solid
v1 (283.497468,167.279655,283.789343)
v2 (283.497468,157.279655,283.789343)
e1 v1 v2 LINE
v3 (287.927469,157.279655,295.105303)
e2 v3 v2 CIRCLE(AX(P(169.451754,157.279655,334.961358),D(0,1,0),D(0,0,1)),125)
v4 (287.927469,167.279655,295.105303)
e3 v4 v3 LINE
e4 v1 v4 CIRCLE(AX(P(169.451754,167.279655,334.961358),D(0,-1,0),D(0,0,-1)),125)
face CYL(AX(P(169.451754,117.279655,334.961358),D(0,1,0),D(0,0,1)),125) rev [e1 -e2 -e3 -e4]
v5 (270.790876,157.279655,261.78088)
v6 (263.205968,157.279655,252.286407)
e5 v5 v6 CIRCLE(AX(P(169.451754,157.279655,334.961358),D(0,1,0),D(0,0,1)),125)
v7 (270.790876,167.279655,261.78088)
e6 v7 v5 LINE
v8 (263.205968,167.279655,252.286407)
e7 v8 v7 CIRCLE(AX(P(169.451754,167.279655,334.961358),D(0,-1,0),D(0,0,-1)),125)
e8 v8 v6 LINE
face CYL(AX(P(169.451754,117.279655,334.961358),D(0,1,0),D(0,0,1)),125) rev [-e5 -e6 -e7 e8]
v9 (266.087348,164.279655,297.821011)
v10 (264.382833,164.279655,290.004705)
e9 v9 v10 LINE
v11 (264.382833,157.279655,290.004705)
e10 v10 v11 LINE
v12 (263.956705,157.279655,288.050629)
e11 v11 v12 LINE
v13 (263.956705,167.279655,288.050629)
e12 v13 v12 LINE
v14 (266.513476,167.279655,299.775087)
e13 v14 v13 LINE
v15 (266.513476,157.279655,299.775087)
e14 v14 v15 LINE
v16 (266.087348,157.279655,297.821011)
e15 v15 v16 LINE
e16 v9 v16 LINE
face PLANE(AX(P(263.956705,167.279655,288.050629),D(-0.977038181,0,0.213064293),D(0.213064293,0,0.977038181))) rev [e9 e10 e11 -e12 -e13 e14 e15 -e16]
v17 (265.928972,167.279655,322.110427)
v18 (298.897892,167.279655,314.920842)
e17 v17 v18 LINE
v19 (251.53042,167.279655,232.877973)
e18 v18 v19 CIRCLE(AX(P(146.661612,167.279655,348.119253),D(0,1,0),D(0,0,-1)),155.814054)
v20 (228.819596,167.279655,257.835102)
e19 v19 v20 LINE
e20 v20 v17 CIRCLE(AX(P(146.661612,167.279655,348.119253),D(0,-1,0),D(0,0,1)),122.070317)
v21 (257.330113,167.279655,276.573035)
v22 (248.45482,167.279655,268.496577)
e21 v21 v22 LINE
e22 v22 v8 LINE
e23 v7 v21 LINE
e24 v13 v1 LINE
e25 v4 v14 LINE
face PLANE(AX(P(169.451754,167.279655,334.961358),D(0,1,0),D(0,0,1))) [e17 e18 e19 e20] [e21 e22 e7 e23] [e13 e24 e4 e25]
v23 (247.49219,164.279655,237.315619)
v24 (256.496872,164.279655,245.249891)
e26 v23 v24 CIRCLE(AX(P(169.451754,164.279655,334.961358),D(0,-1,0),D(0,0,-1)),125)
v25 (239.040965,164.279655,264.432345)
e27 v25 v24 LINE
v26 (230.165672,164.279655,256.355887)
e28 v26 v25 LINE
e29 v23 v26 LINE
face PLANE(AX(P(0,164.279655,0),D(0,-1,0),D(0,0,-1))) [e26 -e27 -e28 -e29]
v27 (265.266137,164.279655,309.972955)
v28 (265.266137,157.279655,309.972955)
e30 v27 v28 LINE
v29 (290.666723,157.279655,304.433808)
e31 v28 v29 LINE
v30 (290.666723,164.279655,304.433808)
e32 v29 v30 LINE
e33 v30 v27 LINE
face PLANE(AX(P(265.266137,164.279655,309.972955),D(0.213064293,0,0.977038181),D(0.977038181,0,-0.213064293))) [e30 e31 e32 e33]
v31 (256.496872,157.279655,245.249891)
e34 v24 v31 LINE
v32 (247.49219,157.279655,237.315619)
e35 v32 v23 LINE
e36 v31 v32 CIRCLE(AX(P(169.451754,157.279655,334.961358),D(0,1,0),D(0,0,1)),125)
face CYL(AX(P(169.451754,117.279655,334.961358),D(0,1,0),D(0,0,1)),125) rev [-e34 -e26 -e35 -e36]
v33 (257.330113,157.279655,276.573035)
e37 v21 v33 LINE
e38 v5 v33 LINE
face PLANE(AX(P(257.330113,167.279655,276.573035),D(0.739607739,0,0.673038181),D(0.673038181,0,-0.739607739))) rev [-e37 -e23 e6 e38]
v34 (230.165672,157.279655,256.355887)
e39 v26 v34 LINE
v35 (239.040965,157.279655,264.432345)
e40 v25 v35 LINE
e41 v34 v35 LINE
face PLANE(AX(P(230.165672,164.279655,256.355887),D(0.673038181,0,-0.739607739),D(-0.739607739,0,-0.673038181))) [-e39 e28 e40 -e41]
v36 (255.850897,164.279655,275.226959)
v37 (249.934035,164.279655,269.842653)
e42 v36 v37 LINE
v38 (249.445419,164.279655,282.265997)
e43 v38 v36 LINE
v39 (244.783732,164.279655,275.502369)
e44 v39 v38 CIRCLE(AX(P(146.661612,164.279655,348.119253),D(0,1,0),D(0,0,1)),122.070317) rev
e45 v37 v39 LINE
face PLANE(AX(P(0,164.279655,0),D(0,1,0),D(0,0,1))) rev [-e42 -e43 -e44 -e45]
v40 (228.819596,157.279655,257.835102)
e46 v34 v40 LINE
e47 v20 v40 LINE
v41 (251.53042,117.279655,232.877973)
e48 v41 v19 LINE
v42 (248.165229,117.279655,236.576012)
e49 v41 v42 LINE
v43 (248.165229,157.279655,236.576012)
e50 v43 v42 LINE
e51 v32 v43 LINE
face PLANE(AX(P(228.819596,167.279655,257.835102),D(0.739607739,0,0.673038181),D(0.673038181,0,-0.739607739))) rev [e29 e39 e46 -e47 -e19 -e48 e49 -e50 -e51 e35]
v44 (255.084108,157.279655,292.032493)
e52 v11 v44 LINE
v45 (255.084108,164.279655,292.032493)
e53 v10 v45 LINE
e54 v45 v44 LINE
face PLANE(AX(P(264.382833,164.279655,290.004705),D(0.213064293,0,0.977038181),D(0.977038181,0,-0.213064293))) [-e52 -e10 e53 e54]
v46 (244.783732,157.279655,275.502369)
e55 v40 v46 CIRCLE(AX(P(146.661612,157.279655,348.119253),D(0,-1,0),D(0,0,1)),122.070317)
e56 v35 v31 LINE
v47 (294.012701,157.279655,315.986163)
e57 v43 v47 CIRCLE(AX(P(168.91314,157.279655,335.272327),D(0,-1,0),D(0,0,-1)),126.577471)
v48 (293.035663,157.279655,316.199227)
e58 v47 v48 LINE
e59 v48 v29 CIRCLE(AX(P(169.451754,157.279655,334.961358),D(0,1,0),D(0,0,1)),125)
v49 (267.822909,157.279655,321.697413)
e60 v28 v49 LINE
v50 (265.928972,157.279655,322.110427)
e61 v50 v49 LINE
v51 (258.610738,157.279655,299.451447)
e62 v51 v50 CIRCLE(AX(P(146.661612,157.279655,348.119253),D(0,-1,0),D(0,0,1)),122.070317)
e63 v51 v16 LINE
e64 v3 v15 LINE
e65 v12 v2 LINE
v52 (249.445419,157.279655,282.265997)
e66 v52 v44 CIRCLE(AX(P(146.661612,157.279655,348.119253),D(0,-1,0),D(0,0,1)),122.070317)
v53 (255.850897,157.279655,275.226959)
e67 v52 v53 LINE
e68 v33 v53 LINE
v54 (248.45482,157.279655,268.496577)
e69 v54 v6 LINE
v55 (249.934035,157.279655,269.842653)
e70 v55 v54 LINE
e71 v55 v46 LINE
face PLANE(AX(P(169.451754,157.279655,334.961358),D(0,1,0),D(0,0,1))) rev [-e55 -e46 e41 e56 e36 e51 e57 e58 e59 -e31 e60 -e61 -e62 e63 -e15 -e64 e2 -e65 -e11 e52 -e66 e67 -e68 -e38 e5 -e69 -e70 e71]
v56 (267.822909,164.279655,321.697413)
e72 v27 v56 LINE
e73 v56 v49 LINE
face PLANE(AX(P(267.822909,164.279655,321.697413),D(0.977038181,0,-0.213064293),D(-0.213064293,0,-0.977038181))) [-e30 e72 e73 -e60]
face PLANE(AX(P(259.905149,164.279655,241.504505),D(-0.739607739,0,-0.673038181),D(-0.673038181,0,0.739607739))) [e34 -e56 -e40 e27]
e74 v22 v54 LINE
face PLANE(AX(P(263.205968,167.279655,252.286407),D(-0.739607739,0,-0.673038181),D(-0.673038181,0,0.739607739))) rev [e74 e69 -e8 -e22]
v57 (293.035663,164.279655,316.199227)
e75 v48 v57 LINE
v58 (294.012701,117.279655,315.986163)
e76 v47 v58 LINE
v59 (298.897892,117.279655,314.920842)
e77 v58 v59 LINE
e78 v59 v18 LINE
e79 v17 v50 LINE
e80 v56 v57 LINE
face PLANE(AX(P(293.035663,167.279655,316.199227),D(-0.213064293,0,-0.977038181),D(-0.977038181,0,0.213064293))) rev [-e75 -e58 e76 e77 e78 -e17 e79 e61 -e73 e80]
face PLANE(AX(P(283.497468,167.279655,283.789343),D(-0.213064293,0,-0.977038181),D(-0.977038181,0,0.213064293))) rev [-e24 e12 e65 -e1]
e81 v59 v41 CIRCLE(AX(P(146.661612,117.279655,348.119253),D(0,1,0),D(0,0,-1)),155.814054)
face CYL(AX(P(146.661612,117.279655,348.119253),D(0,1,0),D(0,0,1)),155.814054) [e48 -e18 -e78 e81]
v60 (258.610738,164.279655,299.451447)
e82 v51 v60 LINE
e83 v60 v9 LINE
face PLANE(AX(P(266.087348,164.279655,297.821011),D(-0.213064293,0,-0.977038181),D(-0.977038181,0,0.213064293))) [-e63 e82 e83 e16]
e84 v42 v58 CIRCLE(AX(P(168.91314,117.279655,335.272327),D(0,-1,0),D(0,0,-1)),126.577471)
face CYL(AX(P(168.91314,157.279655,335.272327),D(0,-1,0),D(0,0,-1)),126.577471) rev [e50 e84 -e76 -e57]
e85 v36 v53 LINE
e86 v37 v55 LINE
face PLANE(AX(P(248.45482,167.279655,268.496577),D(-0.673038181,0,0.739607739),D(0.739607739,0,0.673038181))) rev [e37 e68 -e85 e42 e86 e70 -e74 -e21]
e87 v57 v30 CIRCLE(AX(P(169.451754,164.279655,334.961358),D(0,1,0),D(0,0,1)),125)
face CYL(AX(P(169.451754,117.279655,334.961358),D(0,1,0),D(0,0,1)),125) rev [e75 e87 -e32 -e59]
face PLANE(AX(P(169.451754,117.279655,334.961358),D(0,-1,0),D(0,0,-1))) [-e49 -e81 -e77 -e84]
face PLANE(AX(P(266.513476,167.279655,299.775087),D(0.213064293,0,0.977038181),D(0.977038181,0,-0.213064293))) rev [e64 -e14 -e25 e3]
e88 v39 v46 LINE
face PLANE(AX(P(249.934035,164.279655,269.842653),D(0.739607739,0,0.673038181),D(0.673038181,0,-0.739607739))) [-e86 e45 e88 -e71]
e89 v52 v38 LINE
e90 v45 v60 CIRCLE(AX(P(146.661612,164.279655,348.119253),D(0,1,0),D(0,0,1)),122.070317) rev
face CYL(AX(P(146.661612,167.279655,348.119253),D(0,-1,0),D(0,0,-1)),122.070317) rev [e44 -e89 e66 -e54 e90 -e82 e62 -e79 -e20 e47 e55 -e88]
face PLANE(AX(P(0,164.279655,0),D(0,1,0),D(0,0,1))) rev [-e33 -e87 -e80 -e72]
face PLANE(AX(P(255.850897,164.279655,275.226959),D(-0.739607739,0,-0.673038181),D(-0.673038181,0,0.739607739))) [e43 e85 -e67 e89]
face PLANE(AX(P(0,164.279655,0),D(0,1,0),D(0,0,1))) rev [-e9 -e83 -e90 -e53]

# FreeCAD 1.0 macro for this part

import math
import FreeCAD as App
import Part
import Sketcher

V = App.Vector
Q = App.Units.Quantity


def add_polygon(sketch, points):
    """Adds a closed chain of lines whose ends are joined by coincident constraints."""
    first, n = sketch.GeometryCount, len(points)
    for a, b in zip(points, points[1:] + points[:1]):
        sketch.addGeometry(Part.LineSegment(App.Vector(*a, 0), App.Vector(*b, 0)), False)
    for i in range(n):
        sketch.addConstraint(Sketcher.Constraint("Coincident", first + i, 2, first + (i + 1) % n, 1))

doc = App.newDocument("Part")
body = doc.addObject("PartDesign::Body", "Body")

sketch1 = body.newObject("Sketcher::SketchObject", "Sketch")
sketch1.AttachmentSupport = (doc.getObject("XZ_Plane"), [""])
sketch1.MapMode = "FlatFace"
sketch1.AttachmentOffset = App.Placement(V(0, 0, -157.279655), App.Rotation())
sketch1.addGeometry(Part.LineSegment(V(265.928972, 322.110427, 0), V(293.035663, 316.199227, 0)), False)
sketch1.addGeometry(Part.ArcOfCircle(Part.Circle(V(169.451754, 334.961358, 0), V(0, 0, 1), 125), math.radians(-18.593298), math.radians(-8.632551)), False)
sketch1.addGeometry(Part.LineSegment(V(287.927469, 295.105303, 0), V(266.513476, 299.775087, 0)), False)
sketch1.addGeometry(Part.LineSegment(V(266.513476, 299.775087, 0), V(263.956705, 288.050629, 0)), False)
sketch1.addGeometry(Part.LineSegment(V(263.956705, 288.050629, 0), V(283.497468, 283.789343, 0)), False)
sketch1.addGeometry(Part.ArcOfCircle(Part.Circle(V(169.451754, 334.961358, 0), V(0, 0, 1), 125), math.radians(-35.83435), math.radians(-24.16565)), False)
sketch1.addGeometry(Part.LineSegment(V(270.790876, 261.78088, 0), V(257.330113, 276.573035, 0)), False)
sketch1.addGeometry(Part.LineSegment(V(257.330113, 276.573035, 0), V(248.45482, 268.496577, 0)), False)
sketch1.addGeometry(Part.LineSegment(V(248.45482, 268.496577, 0), V(263.205968, 252.286407, 0)), False)
sketch1.addGeometry(Part.ArcOfCircle(Part.Circle(V(169.451754, 334.961358, 0), V(0, 0, 1), 125), math.radians(-51.367449), math.radians(-41.406702)), False)
sketch1.addGeometry(Part.LineSegment(V(247.49219, 237.315619, 0), V(228.819596, 257.835102, 0)), False)
sketch1.addGeometry(Part.ArcOfCircle(Part.Circle(V(146.661612, 348.119253, 0), V(0, 0, 1), 122.070317), math.radians(-47.698012), math.radians(-12.301988)), False)
sketch1.addConstraint(Sketcher.Constraint("Coincident", 0, 2, 1, 2))
sketch1.addConstraint(Sketcher.Constraint("Coincident", 1, 1, 2, 1))
sketch1.addConstraint(Sketcher.Constraint("Coincident", 2, 2, 3, 1))
sketch1.addConstraint(Sketcher.Constraint("Coincident", 3, 2, 4, 1))
sketch1.addConstraint(Sketcher.Constraint("Coincident", 4, 2, 5, 2))
sketch1.addConstraint(Sketcher.Constraint("Coincident", 5, 1, 6, 1))
sketch1.addConstraint(Sketcher.Constraint("Coincident", 6, 2, 7, 1))
sketch1.addConstraint(Sketcher.Constraint("Coincident", 7, 2, 8, 1))
sketch1.addConstraint(Sketcher.Constraint("Coincident", 8, 2, 9, 2))
sketch1.addConstraint(Sketcher.Constraint("Coincident", 9, 1, 10, 1))
sketch1.addConstraint(Sketcher.Constraint("Coincident", 10, 2, 11, 1))
sketch1.addConstraint(Sketcher.Constraint("Coincident", 11, 2, 0, 1))
sketch1.addConstraint(Sketcher.Constraint("Coincident", 5, 3, 1, 3))
sketch1.addConstraint(Sketcher.Constraint("Coincident", 9, 3, 1, 3))
sketch1.addConstraint(Sketcher.Constraint("Equal", 1, 5))
sketch1.addConstraint(Sketcher.Constraint("Equal", 5, 9))
sketch1.addConstraint(Sketcher.Constraint("Parallel", 0, 2))
sketch1.addConstraint(Sketcher.Constraint("Perpendicular", 2, 3))
sketch1.addConstraint(Sketcher.Constraint("Perpendicular", 3, 4))
sketch1.addConstraint(Sketcher.Constraint("Perpendicular", 6, 7))
sketch1.addConstraint(Sketcher.Constraint("Perpendicular", 7, 8))
sketch1.addConstraint(Sketcher.Constraint("Parallel", 8, 10))
sketch1.addConstraint(Sketcher.Constraint("Equal", 4, 6))
sketch1.addConstraint(Sketcher.Constraint("Equal", 3, 7))
sketch1.addConstraint(Sketcher.Constraint("Equal", 2, 8))
sketch1.addConstraint(Sketcher.Constraint("Equal", 0, 10))
sketch1.addConstraint(Sketcher.Constraint("Radius", 1, Q("125 mm")))
sketch1.addConstraint(Sketcher.Constraint("Distance", 3, Q("12 mm")))
sketch1.addConstraint(Sketcher.Constraint("Distance", 4, Q("20 mm")))
sketch1.addConstraint(Sketcher.Constraint("Radius", 11, Q("122.070317 mm")))
sketch1.addConstraint(Sketcher.Constraint("DistanceY", 3, 2, 0, 2, Q("28.148599 mm")))
sketch1.addConstraint(Sketcher.Constraint("DistanceX", 2, 2, 5, 1, Q("4.2774 mm")))
sketch1.addConstraint(Sketcher.Constraint("DistanceX", 8, 2, 4, 2, Q("20.291501 mm")))
sketch1.addConstraint(Sketcher.Constraint("DistanceY", -1, 1, 1, 3, Q("334.961358 mm")))
sketch1.addConstraint(Sketcher.Constraint("DistanceX", -1, 1, 1, 1, Q("287.927469 mm")))
sketch1.addConstraint(Sketcher.Constraint("DistanceY", -1, 1, 3, 2, Q("288.050629 mm")))
sketch1.addConstraint(Sketcher.Constraint("DistanceX", -1, 1, 9, 1, Q("247.49219 mm")))
sketch1.addConstraint(Sketcher.Constraint("DistanceX", 11, 3, 0, 2, Q("146.374051 mm")))
pad1 = body.newObject("PartDesign::Pad", "Pad")
pad1.Profile = sketch1
pad1.Length = 10
pad1.Reversed = True

sketch2 = body.newObject("Sketcher::SketchObject", "Sketch001")
sketch2.AttachmentSupport = (doc.getObject("XZ_Plane"), [""])
sketch2.MapMode = "FlatFace"
sketch2.AttachmentOffset = App.Placement(V(0, 0, -157.279655), App.Rotation())
add_polygon(sketch2, [(265.266137, 309.972955), (267.822909, 321.697413), (297.930502, 315.131802), (295.554321, 303.367962)])
add_polygon(sketch2, [(251.029856, 233.428047), (230.165672, 256.355887), (239.040965, 264.432345), (259.905149, 241.504505)])
sketch2.addConstraint(Sketcher.Constraint("Perpendicular", 0, 1))
sketch2.addConstraint(Sketcher.Constraint("Parallel", 1, 3))
sketch2.addConstraint(Sketcher.Constraint("Perpendicular", 4, 5))
sketch2.addConstraint(Sketcher.Constraint("Perpendicular", 5, 6))
sketch2.addConstraint(Sketcher.Constraint("Perpendicular", 6, 7))
sketch2.addConstraint(Sketcher.Constraint("Equal", 3, 4))
sketch2.addConstraint(Sketcher.Constraint("Equal", 0, 5))
sketch2.addConstraint(Sketcher.Constraint("Distance", 0, Q("12 mm")))
sketch2.addConstraint(Sketcher.Constraint("Distance", 3, Q("31 mm")))
sketch2.addConstraint(Sketcher.Constraint("DistanceY", -1, 1, 1, 2, Q("315.131802 mm")))
sketch2.addConstraint(Sketcher.Constraint("DistanceY", 7, 2, 5, 2, Q("31.004298 mm")))
sketch2.addConstraint(Sketcher.Constraint("DistanceX", -1, 1, 0, 2, Q("267.822909 mm")))
sketch2.addConstraint(Sketcher.Constraint("DistanceX", -1, 1, 2, 2, Q("295.554321 mm")))
sketch2.addConstraint(Sketcher.Constraint("DistanceX", -1, 1, 6, 2, Q("259.905149 mm")))
sketch2.addConstraint(Sketcher.Constraint("DistanceY", 1, 2, 0, 2, Q("6.565611 mm")))
sketch2.addConstraint(Sketcher.Constraint("DistanceY", 4, 2, 3, 2, Q("53.617069 mm")))
pocket1 = body.newObject("PartDesign::Pocket", "Pocket")
pocket1.Profile = sketch2
pocket1.Length = 7

sketch3 = body.newObject("Sketcher::SketchObject", "Sketch002")
sketch3.AttachmentSupport = (doc.getObject("XZ_Plane"), [""])
sketch3.MapMode = "FlatFace"
sketch3.AttachmentOffset = App.Placement(V(0, 0, -117.279655), App.Rotation())
sketch3.addGeometry(Part.LineSegment(V(293.035663, 316.199227, 0), V(298.897892, 314.920842, 0)), False)
sketch3.addGeometry(Part.ArcOfCircle(Part.Circle(V(146.661612, 348.119253, 0), V(0, 0, 1), 155.814054), math.radians(-47.698012), math.radians(-12.301988)), False)
sketch3.addGeometry(Part.LineSegment(V(251.53042, 232.877973, 0), V(247.49219, 237.315619, 0)), False)
sketch3.addGeometry(Part.ArcOfCircle(Part.Circle(V(169.451754, 334.961358, 0), V(0, 0, 1), 125), math.radians(-51.367449), math.radians(-8.632551)), False)
sketch3.addConstraint(Sketcher.Constraint("Coincident", 0, 2, 1, 2))
sketch3.addConstraint(Sketcher.Constraint("Coincident", 1, 1, 2, 1))
sketch3.addConstraint(Sketcher.Constraint("Coincident", 2, 2, 3, 1))
sketch3.addConstraint(Sketcher.Constraint("Coincident", 3, 2, 0, 1))
sketch3.addConstraint(Sketcher.Constraint("Equal", 0, 2))
sketch3.addConstraint(Sketcher.Constraint("Radius", 3, Q("125 mm")))
sketch3.addConstraint(Sketcher.Constraint("Distance", 0, Q("6 mm")))
sketch3.addConstraint(Sketcher.Constraint("Radius", 1, Q("155.814054 mm")))
sketch3.addConstraint(Sketcher.Constraint("DistanceX", 2, 2, 0, 2, Q("51.405701 mm")))
sketch3.addConstraint(Sketcher.Constraint("DistanceY", -1, 1, 3, 3, Q("334.961358 mm")))
sketch3.addConstraint(Sketcher.Constraint("DistanceX", -1, 1, 0, 2, Q("298.897892 mm")))
sketch3.addConstraint(Sketcher.Constraint("DistanceY", -1, 1, 0, 2, Q("314.920842 mm")))
sketch3.addConstraint(Sketcher.Constraint("DistanceX", -1, 1, 1, 1, Q("251.53042 mm")))
sketch3.addConstraint(Sketcher.Constraint("DistanceY", -1, 1, 2, 2, Q("237.315619 mm")))
pad2 = body.newObject("PartDesign::Pad", "Pad001")
pad2.Profile = sketch3
pad2.Length = 50
pad2.Reversed = True

sketch4 = body.newObject("Sketcher::SketchObject", "Sketch003")
sketch4.AttachmentSupport = (doc.getObject("XZ_Plane"), [""])
sketch4.MapMode = "FlatFace"
sketch4.AttachmentOffset = App.Placement(V(0, 0, -117.279655), App.Rotation())
sketch4.addGeometry(Part.LineSegment(V(294.012701, 315.986163, 0), V(293.035663, 316.199227, 0)), False)
sketch4.addGeometry(Part.ArcOfCircle(Part.Circle(V(169.451754, 334.961358, 0), V(0, 0, 1), 125), math.radians(-51.367449), math.radians(-8.632551)), False)
sketch4.addGeometry(Part.LineSegment(V(247.49219, 237.315619, 0), V(248.165229, 236.576012, 0)), False)
sketch4.addGeometry(Part.ArcOfCircle(Part.Circle(V(168.91314, 335.272327, 0), V(0, 0, 1), 126.577471), math.radians(-51.235907), math.radians(-8.764093)), False)
sketch4.addConstraint(Sketcher.Constraint("Coincident", 0, 2, 1, 2))
sketch4.addConstraint(Sketcher.Constraint("Coincident", 1, 1, 2, 1))
sketch4.addConstraint(Sketcher.Constraint("Coincident", 2, 2, 3, 1))
sketch4.addConstraint(Sketcher.Constraint("Coincident", 3, 2, 0, 1))
sketch4.addConstraint(Sketcher.Constraint("Equal", 0, 2))
sketch4.addConstraint(Sketcher.Constraint("Radius", 1, Q("125 mm")))
sketch4.addConstraint(Sketcher.Constraint("Distance", 0, Q("1 mm")))
sketch4.addConstraint(Sketcher.Constraint("Radius", 3, Q("126.577471 mm")))
sketch4.addConstraint(Sketcher.Constraint("DistanceX", -1, 1, 3, 2, Q("294.012701 mm")))
sketch4.addConstraint(Sketcher.Constraint("DistanceY", 0, 2, 3, 3, Q("19.0731 mm")))
sketch4.addConstraint(Sketcher.Constraint("DistanceY", -1, 1, 1, 3, Q("334.961358 mm")))
sketch4.addConstraint(Sketcher.Constraint("DistanceX", -1, 1, 3, 3, Q("168.91314 mm")))
sketch4.addConstraint(Sketcher.Constraint("DistanceX", -1, 1, 1, 1, Q("247.49219 mm")))
sketch4.addConstraint(Sketcher.Constraint("DistanceX", -1, 1, 2, 2, Q("248.165229 mm")))
pocket2 = body.newObject("PartDesign::Pocket", "Pocket001")
pocket2.Profile = sketch4
pocket2.Length = 40

sketch5 = body.newObject("Sketcher::SketchObject", "Sketch004")
sketch5.AttachmentSupport = (doc.getObject("XZ_Plane"), [""])
sketch5.MapMode = "FlatFace"
sketch5.AttachmentOffset = App.Placement(V(0, 0, -157.279655), App.Rotation())
add_polygon(sketch5, [(255.850897, 275.226959), (249.934035, 269.842653), (243.203654, 277.238731), (249.120515, 282.623036)])
add_polygon(sketch5, [(266.087348, 297.821011), (264.382833, 290.004705), (254.612451, 292.135348), (256.316966, 299.951654)])
sketch5.addConstraint(Sketcher.Constraint("Perpendicular", 0, 1))
sketch5.addConstraint(Sketcher.Constraint("Perpendicular", 1, 2))
sketch5.addConstraint(Sketcher.Constraint("Perpendicular", 2, 3))
sketch5.addConstraint(Sketcher.Constraint("Perpendicular", 4, 5))
sketch5.addConstraint(Sketcher.Constraint("Perpendicular", 5, 6))
sketch5.addConstraint(Sketcher.Constraint("Perpendicular", 6, 7))
sketch5.addConstraint(Sketcher.Constraint("Equal", 2, 4))
sketch5.addConstraint(Sketcher.Constraint("Equal", 3, 5))
sketch5.addConstraint(Sketcher.Constraint("Distance", 0, Q("8 mm")))
sketch5.addConstraint(Sketcher.Constraint("Distance", 1, Q("10 mm")))
sketch5.addConstraint(Sketcher.Constraint("DistanceY", -1, 1, 1, 2, Q("277.238731 mm")))
sketch5.addConstraint(Sketcher.Constraint("DistanceY", -1, 1, 3, 2, Q("275.226959 mm")))
sketch5.addConstraint(Sketcher.Constraint("DistanceX", -1, 1, 5, 2, Q("254.612451 mm")))
sketch5.addConstraint(Sketcher.Constraint("DistanceY", -1, 1, 5, 2, Q("292.135348 mm")))
sketch5.addConstraint(Sketcher.Constraint("DistanceY", -1, 1, 7, 2, Q("297.821011 mm")))
sketch5.addConstraint(Sketcher.Constraint("DistanceX", 1, 2, 4, 2, Q("21.17918 mm")))
pocket3 = body.newObject("PartDesign::Pocket", "Pocket002")
pocket3.Profile = sketch5
pocket3.Length = 7

doc.recompute()
